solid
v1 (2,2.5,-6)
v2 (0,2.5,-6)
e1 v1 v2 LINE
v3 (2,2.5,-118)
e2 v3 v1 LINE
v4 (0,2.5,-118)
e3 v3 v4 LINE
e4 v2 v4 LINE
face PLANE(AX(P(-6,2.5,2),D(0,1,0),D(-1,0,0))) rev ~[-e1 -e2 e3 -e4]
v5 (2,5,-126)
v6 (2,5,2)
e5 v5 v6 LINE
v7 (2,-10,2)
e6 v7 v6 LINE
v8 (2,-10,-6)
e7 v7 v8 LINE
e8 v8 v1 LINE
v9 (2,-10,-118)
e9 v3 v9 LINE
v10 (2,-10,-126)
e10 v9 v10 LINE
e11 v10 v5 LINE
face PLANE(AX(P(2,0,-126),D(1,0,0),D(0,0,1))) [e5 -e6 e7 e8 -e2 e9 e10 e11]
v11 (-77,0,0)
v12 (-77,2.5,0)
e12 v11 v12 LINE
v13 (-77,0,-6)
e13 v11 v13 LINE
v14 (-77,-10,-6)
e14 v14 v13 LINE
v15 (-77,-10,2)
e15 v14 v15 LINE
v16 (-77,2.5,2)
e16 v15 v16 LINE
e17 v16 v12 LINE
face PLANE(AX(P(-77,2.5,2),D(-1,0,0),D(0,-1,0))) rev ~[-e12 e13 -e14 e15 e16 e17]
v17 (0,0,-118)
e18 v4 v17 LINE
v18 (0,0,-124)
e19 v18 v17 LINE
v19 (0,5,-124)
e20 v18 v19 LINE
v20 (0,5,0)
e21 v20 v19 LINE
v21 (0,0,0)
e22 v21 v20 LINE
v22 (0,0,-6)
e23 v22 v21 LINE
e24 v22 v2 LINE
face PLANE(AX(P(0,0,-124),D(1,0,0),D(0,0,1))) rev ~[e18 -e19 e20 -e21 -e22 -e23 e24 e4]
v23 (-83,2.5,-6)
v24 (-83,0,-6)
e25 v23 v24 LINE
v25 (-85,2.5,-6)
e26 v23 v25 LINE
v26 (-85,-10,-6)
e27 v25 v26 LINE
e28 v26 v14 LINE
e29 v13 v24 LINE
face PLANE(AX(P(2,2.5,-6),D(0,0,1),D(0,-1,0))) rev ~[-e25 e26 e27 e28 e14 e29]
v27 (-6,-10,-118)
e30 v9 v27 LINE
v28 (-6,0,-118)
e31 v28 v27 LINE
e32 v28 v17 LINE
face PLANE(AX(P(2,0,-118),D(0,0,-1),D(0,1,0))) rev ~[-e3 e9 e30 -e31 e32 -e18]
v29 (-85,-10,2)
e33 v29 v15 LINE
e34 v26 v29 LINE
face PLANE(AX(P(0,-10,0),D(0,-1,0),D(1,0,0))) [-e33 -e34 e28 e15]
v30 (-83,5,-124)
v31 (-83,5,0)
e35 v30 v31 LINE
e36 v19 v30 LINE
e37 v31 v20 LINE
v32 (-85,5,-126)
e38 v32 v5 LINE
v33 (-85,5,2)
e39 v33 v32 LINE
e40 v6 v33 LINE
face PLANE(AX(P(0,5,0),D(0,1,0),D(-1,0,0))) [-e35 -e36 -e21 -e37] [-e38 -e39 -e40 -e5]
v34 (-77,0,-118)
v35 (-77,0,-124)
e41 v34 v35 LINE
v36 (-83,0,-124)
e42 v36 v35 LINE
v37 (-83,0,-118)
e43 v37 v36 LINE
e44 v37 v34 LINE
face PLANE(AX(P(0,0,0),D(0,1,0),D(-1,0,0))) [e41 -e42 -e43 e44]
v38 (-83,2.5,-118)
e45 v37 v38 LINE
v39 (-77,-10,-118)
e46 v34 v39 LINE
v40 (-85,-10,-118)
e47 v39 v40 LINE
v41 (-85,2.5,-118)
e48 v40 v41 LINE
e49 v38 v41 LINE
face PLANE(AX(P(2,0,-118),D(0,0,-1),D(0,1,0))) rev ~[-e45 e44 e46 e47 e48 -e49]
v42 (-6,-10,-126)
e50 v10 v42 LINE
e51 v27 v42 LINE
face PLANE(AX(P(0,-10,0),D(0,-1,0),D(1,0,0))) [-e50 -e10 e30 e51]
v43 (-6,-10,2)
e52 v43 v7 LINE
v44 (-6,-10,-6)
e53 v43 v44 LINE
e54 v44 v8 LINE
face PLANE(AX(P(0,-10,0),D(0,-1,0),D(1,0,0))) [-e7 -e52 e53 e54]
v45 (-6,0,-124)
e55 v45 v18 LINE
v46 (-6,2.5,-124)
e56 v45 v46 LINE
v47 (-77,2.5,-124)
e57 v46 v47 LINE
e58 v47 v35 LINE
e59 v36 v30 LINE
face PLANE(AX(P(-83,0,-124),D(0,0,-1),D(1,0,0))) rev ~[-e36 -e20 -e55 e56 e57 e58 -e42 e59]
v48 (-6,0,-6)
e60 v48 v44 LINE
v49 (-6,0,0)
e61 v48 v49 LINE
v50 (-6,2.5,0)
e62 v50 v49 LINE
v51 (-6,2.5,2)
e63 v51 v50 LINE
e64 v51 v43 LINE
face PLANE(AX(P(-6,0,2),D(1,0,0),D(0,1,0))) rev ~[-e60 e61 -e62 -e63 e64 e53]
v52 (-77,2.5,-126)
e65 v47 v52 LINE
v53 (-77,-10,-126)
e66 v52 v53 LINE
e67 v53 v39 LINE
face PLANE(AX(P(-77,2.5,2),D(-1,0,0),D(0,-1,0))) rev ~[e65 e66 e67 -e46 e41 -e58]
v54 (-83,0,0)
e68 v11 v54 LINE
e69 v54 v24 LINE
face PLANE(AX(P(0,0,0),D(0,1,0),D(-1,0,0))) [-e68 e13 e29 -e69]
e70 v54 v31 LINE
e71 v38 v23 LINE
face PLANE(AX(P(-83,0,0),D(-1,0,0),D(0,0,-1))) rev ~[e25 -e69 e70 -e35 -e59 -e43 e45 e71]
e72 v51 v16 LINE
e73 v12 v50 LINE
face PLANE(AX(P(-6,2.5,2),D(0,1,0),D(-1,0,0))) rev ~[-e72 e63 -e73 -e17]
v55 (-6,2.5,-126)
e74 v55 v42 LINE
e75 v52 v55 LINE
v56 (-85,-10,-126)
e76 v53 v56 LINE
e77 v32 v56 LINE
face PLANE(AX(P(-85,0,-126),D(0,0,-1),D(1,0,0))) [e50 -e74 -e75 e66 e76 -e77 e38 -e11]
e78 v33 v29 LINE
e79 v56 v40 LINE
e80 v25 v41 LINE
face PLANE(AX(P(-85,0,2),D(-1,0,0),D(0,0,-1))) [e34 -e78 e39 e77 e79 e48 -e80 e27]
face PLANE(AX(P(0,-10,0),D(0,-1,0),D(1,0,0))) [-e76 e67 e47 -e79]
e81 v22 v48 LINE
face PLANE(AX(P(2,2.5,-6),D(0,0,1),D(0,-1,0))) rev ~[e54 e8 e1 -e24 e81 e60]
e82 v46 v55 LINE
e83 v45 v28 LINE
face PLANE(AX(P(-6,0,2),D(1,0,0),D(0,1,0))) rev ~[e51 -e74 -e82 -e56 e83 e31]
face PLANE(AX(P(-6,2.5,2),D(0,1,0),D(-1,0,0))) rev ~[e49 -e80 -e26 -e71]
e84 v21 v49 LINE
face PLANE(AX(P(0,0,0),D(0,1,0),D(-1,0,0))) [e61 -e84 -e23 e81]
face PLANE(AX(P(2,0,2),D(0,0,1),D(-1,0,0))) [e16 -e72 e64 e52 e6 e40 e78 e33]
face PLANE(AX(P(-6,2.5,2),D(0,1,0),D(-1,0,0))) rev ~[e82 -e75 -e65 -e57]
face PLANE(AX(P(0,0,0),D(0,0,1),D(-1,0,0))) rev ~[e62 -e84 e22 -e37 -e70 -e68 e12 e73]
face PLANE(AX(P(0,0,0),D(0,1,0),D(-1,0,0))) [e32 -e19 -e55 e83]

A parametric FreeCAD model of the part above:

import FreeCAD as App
import Part
import Sketcher
Q = App.Units.Quantity


def add_polygon(sketch, points):
    """Adds a closed chain of lines whose ends are joined by coincident constraints."""
    first, n = sketch.GeometryCount, len(points)
    for a, b in zip(points, points[1:] + points[:1]):
        sketch.addGeometry(Part.LineSegment(App.Vector(*a, 0), App.Vector(*b, 0)), False)
    for i in range(n):
        sketch.addConstraint(Sketcher.Constraint("Coincident", first + i, 2, first + (i + 1) % n, 1))

doc = App.newDocument("Part")
body = doc.addObject("PartDesign::Body", "Body")

sketch1 = body.newObject("Sketcher::SketchObject", "Sketch")
sketch1.AttachmentSupport = (doc.getObject("XZ_Plane"), [""])
sketch1.MapMode = "FlatFace"
add_polygon(sketch1, [(-85, 2), (2, 2), (2, -126), (-85, -126)])
sketch1.addConstraint([
    Sketcher.Constraint("Horizontal", 0),
    Sketcher.Constraint("Vertical", 1),
    Sketcher.Constraint("Horizontal", 2),
    Sketcher.Constraint("Vertical", 3),
    Sketcher.Constraint("DistanceX", -1, 1, 0, 2, Q("2 mm")),
    Sketcher.Constraint("DistanceY", -1, 1, 0, 2, Q("2 mm")),
    Sketcher.Constraint("DistanceX", 0, 1, 0, 2, Q("87 mm")),
    Sketcher.Constraint("DistanceY", 1, 2, 1, 1, Q("128 mm")),
])
pad1 = body.newObject("PartDesign::Pad", "Pad")
pad1.Profile = sketch1
pad1.Length = 5
pad1.Reversed = True

sketch2 = body.newObject("Sketcher::SketchObject", "Sketch001")
sketch2.AttachmentSupport = (doc.getObject("XY_Plane"), [""])
sketch2.MapMode = "FlatFace"
sketch2.AttachmentOffset = App.Placement(App.Vector(0, 0, 2), App.Rotation())
add_polygon(sketch2, [(-77, 2.5), (-77, 0), (-6, 0), (-6, 2.5)])
sketch2.addConstraint([
    Sketcher.Constraint("Vertical", 0),
    Sketcher.Constraint("Horizontal", 1),
    Sketcher.Constraint("Vertical", 2),
    Sketcher.Constraint("Horizontal", 3),
    Sketcher.Constraint("PointOnObject", 0, 2, -1),
    Sketcher.Constraint("DistanceX", 1, 1, 1, 2, Q("71 mm")),
    Sketcher.Constraint("DistanceY", 0, 2, 0, 1, Q("2.5 mm")),
    Sketcher.Constraint("DistanceX", 0, 2, -1, 1, Q("77 mm")),
])
pocket1 = body.newObject("PartDesign::Pocket", "Pocket")
pocket1.Profile = sketch2
pocket1.Type = "ThroughAll"

sketch3 = body.newObject("Sketcher::SketchObject", "Sketch002")
sketch3.AttachmentSupport = (doc.getObject("YZ_Plane"), [""])
sketch3.MapMode = "FlatFace"
sketch3.AttachmentOffset = App.Placement(App.Vector(0, 0, 2), App.Rotation())
add_polygon(sketch3, [(2.5, -6), (0, -6), (0, -118), (2.5, -118)])
sketch3.addConstraint([
    Sketcher.Constraint("Horizontal", 0),
    Sketcher.Constraint("Vertical", 1),
    Sketcher.Constraint("Horizontal", 2),
    Sketcher.Constraint("Vertical", 3),
    Sketcher.Constraint("PointOnObject", 0, 2, -2),
    Sketcher.Constraint("DistanceX", 0, 2, 0, 1, Q("2.5 mm")),
    Sketcher.Constraint("DistanceY", 1, 2, 1, 1, Q("112 mm")),
    Sketcher.Constraint("DistanceY", 0, 2, -1, 1, Q("6 mm")),
])
pocket2 = body.newObject("PartDesign::Pocket", "Pocket001")
pocket2.Profile = sketch3
pocket2.Type = "ThroughAll"

sketch4 = body.newObject("Sketcher::SketchObject", "Sketch003")
sketch4.AttachmentSupport = (doc.getObject("XZ_Plane"), [""])
sketch4.MapMode = "FlatFace"
add_polygon(sketch4, [(-6, 2), (-6, -6), (2, -6), (2, 2)])
add_polygon(sketch4, [(-85, -126), (-77, -126), (-77, -118), (-85, -118)])
add_polygon(sketch4, [(-77, 2), (-85, 2), (-85, -6), (-77, -6)])
add_polygon(sketch4, [(2, -126), (2, -118), (-6, -118), (-6, -126)])
sketch4.addConstraint([
    Sketcher.Constraint("Vertical", 0),
    Sketcher.Constraint("Horizontal", 1),
    Sketcher.Constraint("Vertical", 2),
    Sketcher.Constraint("Horizontal", 3),
    Sketcher.Constraint("Horizontal", 4),
    Sketcher.Constraint("Vertical", 5),
    Sketcher.Constraint("Horizontal", 6),
    Sketcher.Constraint("Vertical", 7),
    Sketcher.Constraint("Horizontal", 8),
    Sketcher.Constraint("Vertical", 9),
    Sketcher.Constraint("Horizontal", 10),
    Sketcher.Constraint("Vertical", 11),
    Sketcher.Constraint("Vertical", 12),
    Sketcher.Constraint("Horizontal", 13),
    Sketcher.Constraint("Vertical", 14),
    Sketcher.Constraint("Horizontal", 15),
    Sketcher.Constraint("Horizontal", 3, 2, 8, 2),
    Sketcher.Constraint("Horizontal", 1, 2, 9, 2),
    Sketcher.Constraint("Horizontal", 6, 2, 12, 2),
    Sketcher.Constraint("Horizontal", 7, 2, 14, 2),
    Sketcher.Constraint("Vertical", 7, 2, 8, 2),
    Sketcher.Constraint("Vertical", 5, 2, 10, 2),
    Sketcher.Constraint("Vertical", 2, 2, 12, 2),
    Sketcher.Constraint("Vertical", 3, 2, 13, 2),
    Sketcher.Constraint("Equal", 3, 4),
    Sketcher.Constraint("Equal", 15, 0),
    Sketcher.Constraint("Equal", 2, 5),
    Sketcher.Constraint("DistanceX", 1, 1, 1, 2, Q("8 mm")),
    Sketcher.Constraint("DistanceX", 0, 2, -1, 1, Q("6 mm")),
    Sketcher.Constraint("DistanceY", 0, 2, -1, 1, Q("6 mm")),
    Sketcher.Constraint("DistanceX", 4, 2, -1, 1, Q("77 mm")),
    Sketcher.Constraint("DistanceY", 4, 2, -1, 1, Q("126 mm")),
])
pad2 = body.newObject("PartDesign::Pad", "Pad001")
pad2.Profile = sketch4
pad2.Length = 10

sketch5 = body.newObject("Sketcher::SketchObject", "Sketch004")
sketch5.AttachmentSupport = (doc.getObject("XZ_Plane"), [""])
sketch5.MapMode = "FlatFace"
add_polygon(sketch5, [(-83, 0), (0, 0), (0, -124), (-83, -124)])
sketch5.addConstraint([
    Sketcher.Constraint("Horizontal", 0),
    Sketcher.Constraint("Vertical", 1),
    Sketcher.Constraint("Horizontal", 2),
    Sketcher.Constraint("Vertical", 3),
    Sketcher.Constraint("Coincident", 0, 2, -1, 1),
    Sketcher.Constraint("DistanceX", 0, 1, 0, 2, Q("83 mm")),
    Sketcher.Constraint("DistanceY", 1, 2, 1, 1, Q("124 mm")),
])
pocket3 = body.newObject("PartDesign::Pocket", "Pocket002")
pocket3.Profile = sketch5
pocket3.Length = 43

doc.recompute()
